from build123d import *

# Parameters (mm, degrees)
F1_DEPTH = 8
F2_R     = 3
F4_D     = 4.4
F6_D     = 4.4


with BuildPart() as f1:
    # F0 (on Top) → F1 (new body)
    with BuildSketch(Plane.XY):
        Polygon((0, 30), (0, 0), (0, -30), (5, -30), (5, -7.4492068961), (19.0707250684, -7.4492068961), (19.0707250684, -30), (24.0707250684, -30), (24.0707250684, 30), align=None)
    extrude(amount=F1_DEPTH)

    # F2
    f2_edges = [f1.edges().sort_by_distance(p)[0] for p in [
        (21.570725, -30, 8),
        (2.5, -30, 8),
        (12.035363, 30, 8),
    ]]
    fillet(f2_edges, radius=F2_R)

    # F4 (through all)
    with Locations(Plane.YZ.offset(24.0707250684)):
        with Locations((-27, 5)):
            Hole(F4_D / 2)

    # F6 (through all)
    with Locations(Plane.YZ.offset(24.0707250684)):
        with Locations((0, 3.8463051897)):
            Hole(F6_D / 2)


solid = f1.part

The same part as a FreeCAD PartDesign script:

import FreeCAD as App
import Part
import Sketcher

V = App.Vector


def edges_at(feature, points):
    """Names of the edges that pass closest to the given points."""
    edges = feature.Shape.Edges
    near = lambda p: min(range(len(edges)), key=lambda i: edges[i].distToShape(Part.Vertex(*p))[0])
    return sorted({f"Edge{near(p) + 1}" for p in points})

doc = App.newDocument("Part")
params = doc.addObject("Spreadsheet::Sheet", "Params")
for row, (alias, value) in enumerate([
    ("sketch1_width", "5 mm"),
    ("sketch1_height", "60 mm"),
    ("pad1_length", "8 mm"),
    ("fillet_radius", "3 mm"),
    ("sketch2_diameter", "4.4 mm"),
    ("hole_diameter", "4.4 mm"),
    ("sketch3_diameter", "4.4 mm"),
    ("hole2_diameter", "4.4 mm"),
], start=1):
    params.set(f"A{row}", alias)
    params.set(f"B{row}", "=" + value)
    params.setAlias(f"B{row}", alias)

body = doc.addObject("PartDesign::Body", "Body")

sketch1 = body.newObject("Sketcher::SketchObject", "Sketch")
sketch1.AttachmentSupport = (doc.getObject("XY_Plane"), [""])
sketch1.MapMode = "FlatFace"
sketch1.addGeometry([
    Part.LineSegment(V(0, 30, 0), V(0, -30, 0)),
    Part.LineSegment(V(0, -30, 0), V(5, -30, 0)),
    Part.LineSegment(V(5, -30, 0), V(5, -7, 0)),
    Part.LineSegment(V(5, -7, 0), V(19, -7, 0)),
    Part.LineSegment(V(19, -7, 0), V(19, -30, 0)),
    Part.LineSegment(V(19, -30, 0), V(24, -30, 0)),
    Part.LineSegment(V(24, -30, 0), V(24, 30, 0)),
    Part.LineSegment(V(24, 30, 0), V(0, 30, 0)),
], False)
sketch1.addConstraint([
    Sketcher.Constraint("Coincident", 0, 2, 1, 1),
    Sketcher.Constraint("Coincident", 1, 2, 2, 1),
    Sketcher.Constraint("Coincident", 2, 2, 3, 1),
    Sketcher.Constraint("Coincident", 3, 2, 4, 1),
    Sketcher.Constraint("Coincident", 4, 2, 5, 1),
    Sketcher.Constraint("Coincident", 5, 2, 6, 1),
    Sketcher.Constraint("Coincident", 6, 2, 7, 1),
    Sketcher.Constraint("Coincident", 7, 2, 0, 1),
    Sketcher.Constraint("Vertical", 0),
    Sketcher.Constraint("Horizontal", 1),
    Sketcher.Constraint("Vertical", 2),
    Sketcher.Constraint("Horizontal", 3),
    Sketcher.Constraint("Vertical", 4),
    Sketcher.Constraint("Horizontal", 5),
    Sketcher.Constraint("Vertical", 6),
    Sketcher.Constraint("Horizontal", 7),
    Sketcher.Constraint("Symmetric", 0, 2, 7, 2, -1, 1),
    Sketcher.Constraint("Horizontal", 1, 2, 4, 2),
    Sketcher.Constraint("Equal", 1, 5),
    Sketcher.Constraint("DistanceX", 1, 1, 1, 2, 5.0),
    Sketcher.Constraint("DistanceY", 0, 2, 0, 1, 60.0),
    Sketcher.Constraint("DistanceX", 3, 1, 3, 2, 14.070725),
    Sketcher.Constraint("DistanceY", 2, 1, 2, 2, 22.550793),
])
sketch1.setExpression("Constraints[19]", "Params.sketch1_width")
sketch1.setExpression("Constraints[20]", "Params.sketch1_height")
pad1 = body.newObject("PartDesign::Pad", "Pad")
pad1.Profile = sketch1
pad1.setExpression("Length", "Params.pad1_length")
doc.recompute()

fillet = body.newObject("PartDesign::Fillet", "Fillet")
fillet.Base = (pad1, edges_at(pad1, [(21.571, -30, 8), (2.5, -30, 8), (12.035, 30, 8)]))
fillet.setExpression("Radius", "Params.fillet_radius")

sketch2 = body.newObject("Sketcher::SketchObject", "Sketch001")
sketch2.AttachmentSupport = (doc.getObject("YZ_Plane"), [""])
sketch2.MapMode = "FlatFace"
sketch2.AttachmentOffset = App.Placement(V(0, 0, 24.070725), App.Rotation())
sketch2.addGeometry(Part.Circle(V(-27, 5, 0), V(0, 0, 1), 2.2), False)
sketch2.addConstraint([
    Sketcher.Constraint("Diameter", 0, 4.4),
    Sketcher.Constraint("DistanceX", 0, 3, -1, 1, 27.0),
    Sketcher.Constraint("DistanceY", -1, 1, 0, 3, 5.0),
])
sketch2.setExpression("Constraints[0]", "Params.sketch2_diameter")
doc.recompute()
hole = body.newObject("PartDesign::Hole", "Hole")
hole.Profile = sketch2
hole.ThreadType = "None"
hole.setExpression("Diameter", "Params.hole_diameter")
hole.DepthType = "ThroughAll"

sketch3 = body.newObject("Sketcher::SketchObject", "Sketch002")
sketch3.AttachmentSupport = (doc.getObject("YZ_Plane"), [""])
sketch3.MapMode = "FlatFace"
sketch3.AttachmentOffset = App.Placement(V(0, 0, 24.070725), App.Rotation())
sketch3.addGeometry(Part.Circle(V(0, 3.8, 0), V(0, 0, 1), 2.2), False)
sketch3.addConstraint([
    Sketcher.Constraint("PointOnObject", 0, 3, -2),
    Sketcher.Constraint("Diameter", 0, 4.4),
    Sketcher.Constraint("DistanceY", -1, 1, 0, 3, 3.846305),
])
sketch3.setExpression("Constraints[1]", "Params.sketch3_diameter")
doc.recompute()
hole2 = body.newObject("PartDesign::Hole", "Hole001")
hole2.Profile = sketch3
hole2.ThreadType = "None"
hole2.setExpression("Diameter", "Params.hole2_diameter")
hole2.DepthType = "ThroughAll"

doc.recompute()
